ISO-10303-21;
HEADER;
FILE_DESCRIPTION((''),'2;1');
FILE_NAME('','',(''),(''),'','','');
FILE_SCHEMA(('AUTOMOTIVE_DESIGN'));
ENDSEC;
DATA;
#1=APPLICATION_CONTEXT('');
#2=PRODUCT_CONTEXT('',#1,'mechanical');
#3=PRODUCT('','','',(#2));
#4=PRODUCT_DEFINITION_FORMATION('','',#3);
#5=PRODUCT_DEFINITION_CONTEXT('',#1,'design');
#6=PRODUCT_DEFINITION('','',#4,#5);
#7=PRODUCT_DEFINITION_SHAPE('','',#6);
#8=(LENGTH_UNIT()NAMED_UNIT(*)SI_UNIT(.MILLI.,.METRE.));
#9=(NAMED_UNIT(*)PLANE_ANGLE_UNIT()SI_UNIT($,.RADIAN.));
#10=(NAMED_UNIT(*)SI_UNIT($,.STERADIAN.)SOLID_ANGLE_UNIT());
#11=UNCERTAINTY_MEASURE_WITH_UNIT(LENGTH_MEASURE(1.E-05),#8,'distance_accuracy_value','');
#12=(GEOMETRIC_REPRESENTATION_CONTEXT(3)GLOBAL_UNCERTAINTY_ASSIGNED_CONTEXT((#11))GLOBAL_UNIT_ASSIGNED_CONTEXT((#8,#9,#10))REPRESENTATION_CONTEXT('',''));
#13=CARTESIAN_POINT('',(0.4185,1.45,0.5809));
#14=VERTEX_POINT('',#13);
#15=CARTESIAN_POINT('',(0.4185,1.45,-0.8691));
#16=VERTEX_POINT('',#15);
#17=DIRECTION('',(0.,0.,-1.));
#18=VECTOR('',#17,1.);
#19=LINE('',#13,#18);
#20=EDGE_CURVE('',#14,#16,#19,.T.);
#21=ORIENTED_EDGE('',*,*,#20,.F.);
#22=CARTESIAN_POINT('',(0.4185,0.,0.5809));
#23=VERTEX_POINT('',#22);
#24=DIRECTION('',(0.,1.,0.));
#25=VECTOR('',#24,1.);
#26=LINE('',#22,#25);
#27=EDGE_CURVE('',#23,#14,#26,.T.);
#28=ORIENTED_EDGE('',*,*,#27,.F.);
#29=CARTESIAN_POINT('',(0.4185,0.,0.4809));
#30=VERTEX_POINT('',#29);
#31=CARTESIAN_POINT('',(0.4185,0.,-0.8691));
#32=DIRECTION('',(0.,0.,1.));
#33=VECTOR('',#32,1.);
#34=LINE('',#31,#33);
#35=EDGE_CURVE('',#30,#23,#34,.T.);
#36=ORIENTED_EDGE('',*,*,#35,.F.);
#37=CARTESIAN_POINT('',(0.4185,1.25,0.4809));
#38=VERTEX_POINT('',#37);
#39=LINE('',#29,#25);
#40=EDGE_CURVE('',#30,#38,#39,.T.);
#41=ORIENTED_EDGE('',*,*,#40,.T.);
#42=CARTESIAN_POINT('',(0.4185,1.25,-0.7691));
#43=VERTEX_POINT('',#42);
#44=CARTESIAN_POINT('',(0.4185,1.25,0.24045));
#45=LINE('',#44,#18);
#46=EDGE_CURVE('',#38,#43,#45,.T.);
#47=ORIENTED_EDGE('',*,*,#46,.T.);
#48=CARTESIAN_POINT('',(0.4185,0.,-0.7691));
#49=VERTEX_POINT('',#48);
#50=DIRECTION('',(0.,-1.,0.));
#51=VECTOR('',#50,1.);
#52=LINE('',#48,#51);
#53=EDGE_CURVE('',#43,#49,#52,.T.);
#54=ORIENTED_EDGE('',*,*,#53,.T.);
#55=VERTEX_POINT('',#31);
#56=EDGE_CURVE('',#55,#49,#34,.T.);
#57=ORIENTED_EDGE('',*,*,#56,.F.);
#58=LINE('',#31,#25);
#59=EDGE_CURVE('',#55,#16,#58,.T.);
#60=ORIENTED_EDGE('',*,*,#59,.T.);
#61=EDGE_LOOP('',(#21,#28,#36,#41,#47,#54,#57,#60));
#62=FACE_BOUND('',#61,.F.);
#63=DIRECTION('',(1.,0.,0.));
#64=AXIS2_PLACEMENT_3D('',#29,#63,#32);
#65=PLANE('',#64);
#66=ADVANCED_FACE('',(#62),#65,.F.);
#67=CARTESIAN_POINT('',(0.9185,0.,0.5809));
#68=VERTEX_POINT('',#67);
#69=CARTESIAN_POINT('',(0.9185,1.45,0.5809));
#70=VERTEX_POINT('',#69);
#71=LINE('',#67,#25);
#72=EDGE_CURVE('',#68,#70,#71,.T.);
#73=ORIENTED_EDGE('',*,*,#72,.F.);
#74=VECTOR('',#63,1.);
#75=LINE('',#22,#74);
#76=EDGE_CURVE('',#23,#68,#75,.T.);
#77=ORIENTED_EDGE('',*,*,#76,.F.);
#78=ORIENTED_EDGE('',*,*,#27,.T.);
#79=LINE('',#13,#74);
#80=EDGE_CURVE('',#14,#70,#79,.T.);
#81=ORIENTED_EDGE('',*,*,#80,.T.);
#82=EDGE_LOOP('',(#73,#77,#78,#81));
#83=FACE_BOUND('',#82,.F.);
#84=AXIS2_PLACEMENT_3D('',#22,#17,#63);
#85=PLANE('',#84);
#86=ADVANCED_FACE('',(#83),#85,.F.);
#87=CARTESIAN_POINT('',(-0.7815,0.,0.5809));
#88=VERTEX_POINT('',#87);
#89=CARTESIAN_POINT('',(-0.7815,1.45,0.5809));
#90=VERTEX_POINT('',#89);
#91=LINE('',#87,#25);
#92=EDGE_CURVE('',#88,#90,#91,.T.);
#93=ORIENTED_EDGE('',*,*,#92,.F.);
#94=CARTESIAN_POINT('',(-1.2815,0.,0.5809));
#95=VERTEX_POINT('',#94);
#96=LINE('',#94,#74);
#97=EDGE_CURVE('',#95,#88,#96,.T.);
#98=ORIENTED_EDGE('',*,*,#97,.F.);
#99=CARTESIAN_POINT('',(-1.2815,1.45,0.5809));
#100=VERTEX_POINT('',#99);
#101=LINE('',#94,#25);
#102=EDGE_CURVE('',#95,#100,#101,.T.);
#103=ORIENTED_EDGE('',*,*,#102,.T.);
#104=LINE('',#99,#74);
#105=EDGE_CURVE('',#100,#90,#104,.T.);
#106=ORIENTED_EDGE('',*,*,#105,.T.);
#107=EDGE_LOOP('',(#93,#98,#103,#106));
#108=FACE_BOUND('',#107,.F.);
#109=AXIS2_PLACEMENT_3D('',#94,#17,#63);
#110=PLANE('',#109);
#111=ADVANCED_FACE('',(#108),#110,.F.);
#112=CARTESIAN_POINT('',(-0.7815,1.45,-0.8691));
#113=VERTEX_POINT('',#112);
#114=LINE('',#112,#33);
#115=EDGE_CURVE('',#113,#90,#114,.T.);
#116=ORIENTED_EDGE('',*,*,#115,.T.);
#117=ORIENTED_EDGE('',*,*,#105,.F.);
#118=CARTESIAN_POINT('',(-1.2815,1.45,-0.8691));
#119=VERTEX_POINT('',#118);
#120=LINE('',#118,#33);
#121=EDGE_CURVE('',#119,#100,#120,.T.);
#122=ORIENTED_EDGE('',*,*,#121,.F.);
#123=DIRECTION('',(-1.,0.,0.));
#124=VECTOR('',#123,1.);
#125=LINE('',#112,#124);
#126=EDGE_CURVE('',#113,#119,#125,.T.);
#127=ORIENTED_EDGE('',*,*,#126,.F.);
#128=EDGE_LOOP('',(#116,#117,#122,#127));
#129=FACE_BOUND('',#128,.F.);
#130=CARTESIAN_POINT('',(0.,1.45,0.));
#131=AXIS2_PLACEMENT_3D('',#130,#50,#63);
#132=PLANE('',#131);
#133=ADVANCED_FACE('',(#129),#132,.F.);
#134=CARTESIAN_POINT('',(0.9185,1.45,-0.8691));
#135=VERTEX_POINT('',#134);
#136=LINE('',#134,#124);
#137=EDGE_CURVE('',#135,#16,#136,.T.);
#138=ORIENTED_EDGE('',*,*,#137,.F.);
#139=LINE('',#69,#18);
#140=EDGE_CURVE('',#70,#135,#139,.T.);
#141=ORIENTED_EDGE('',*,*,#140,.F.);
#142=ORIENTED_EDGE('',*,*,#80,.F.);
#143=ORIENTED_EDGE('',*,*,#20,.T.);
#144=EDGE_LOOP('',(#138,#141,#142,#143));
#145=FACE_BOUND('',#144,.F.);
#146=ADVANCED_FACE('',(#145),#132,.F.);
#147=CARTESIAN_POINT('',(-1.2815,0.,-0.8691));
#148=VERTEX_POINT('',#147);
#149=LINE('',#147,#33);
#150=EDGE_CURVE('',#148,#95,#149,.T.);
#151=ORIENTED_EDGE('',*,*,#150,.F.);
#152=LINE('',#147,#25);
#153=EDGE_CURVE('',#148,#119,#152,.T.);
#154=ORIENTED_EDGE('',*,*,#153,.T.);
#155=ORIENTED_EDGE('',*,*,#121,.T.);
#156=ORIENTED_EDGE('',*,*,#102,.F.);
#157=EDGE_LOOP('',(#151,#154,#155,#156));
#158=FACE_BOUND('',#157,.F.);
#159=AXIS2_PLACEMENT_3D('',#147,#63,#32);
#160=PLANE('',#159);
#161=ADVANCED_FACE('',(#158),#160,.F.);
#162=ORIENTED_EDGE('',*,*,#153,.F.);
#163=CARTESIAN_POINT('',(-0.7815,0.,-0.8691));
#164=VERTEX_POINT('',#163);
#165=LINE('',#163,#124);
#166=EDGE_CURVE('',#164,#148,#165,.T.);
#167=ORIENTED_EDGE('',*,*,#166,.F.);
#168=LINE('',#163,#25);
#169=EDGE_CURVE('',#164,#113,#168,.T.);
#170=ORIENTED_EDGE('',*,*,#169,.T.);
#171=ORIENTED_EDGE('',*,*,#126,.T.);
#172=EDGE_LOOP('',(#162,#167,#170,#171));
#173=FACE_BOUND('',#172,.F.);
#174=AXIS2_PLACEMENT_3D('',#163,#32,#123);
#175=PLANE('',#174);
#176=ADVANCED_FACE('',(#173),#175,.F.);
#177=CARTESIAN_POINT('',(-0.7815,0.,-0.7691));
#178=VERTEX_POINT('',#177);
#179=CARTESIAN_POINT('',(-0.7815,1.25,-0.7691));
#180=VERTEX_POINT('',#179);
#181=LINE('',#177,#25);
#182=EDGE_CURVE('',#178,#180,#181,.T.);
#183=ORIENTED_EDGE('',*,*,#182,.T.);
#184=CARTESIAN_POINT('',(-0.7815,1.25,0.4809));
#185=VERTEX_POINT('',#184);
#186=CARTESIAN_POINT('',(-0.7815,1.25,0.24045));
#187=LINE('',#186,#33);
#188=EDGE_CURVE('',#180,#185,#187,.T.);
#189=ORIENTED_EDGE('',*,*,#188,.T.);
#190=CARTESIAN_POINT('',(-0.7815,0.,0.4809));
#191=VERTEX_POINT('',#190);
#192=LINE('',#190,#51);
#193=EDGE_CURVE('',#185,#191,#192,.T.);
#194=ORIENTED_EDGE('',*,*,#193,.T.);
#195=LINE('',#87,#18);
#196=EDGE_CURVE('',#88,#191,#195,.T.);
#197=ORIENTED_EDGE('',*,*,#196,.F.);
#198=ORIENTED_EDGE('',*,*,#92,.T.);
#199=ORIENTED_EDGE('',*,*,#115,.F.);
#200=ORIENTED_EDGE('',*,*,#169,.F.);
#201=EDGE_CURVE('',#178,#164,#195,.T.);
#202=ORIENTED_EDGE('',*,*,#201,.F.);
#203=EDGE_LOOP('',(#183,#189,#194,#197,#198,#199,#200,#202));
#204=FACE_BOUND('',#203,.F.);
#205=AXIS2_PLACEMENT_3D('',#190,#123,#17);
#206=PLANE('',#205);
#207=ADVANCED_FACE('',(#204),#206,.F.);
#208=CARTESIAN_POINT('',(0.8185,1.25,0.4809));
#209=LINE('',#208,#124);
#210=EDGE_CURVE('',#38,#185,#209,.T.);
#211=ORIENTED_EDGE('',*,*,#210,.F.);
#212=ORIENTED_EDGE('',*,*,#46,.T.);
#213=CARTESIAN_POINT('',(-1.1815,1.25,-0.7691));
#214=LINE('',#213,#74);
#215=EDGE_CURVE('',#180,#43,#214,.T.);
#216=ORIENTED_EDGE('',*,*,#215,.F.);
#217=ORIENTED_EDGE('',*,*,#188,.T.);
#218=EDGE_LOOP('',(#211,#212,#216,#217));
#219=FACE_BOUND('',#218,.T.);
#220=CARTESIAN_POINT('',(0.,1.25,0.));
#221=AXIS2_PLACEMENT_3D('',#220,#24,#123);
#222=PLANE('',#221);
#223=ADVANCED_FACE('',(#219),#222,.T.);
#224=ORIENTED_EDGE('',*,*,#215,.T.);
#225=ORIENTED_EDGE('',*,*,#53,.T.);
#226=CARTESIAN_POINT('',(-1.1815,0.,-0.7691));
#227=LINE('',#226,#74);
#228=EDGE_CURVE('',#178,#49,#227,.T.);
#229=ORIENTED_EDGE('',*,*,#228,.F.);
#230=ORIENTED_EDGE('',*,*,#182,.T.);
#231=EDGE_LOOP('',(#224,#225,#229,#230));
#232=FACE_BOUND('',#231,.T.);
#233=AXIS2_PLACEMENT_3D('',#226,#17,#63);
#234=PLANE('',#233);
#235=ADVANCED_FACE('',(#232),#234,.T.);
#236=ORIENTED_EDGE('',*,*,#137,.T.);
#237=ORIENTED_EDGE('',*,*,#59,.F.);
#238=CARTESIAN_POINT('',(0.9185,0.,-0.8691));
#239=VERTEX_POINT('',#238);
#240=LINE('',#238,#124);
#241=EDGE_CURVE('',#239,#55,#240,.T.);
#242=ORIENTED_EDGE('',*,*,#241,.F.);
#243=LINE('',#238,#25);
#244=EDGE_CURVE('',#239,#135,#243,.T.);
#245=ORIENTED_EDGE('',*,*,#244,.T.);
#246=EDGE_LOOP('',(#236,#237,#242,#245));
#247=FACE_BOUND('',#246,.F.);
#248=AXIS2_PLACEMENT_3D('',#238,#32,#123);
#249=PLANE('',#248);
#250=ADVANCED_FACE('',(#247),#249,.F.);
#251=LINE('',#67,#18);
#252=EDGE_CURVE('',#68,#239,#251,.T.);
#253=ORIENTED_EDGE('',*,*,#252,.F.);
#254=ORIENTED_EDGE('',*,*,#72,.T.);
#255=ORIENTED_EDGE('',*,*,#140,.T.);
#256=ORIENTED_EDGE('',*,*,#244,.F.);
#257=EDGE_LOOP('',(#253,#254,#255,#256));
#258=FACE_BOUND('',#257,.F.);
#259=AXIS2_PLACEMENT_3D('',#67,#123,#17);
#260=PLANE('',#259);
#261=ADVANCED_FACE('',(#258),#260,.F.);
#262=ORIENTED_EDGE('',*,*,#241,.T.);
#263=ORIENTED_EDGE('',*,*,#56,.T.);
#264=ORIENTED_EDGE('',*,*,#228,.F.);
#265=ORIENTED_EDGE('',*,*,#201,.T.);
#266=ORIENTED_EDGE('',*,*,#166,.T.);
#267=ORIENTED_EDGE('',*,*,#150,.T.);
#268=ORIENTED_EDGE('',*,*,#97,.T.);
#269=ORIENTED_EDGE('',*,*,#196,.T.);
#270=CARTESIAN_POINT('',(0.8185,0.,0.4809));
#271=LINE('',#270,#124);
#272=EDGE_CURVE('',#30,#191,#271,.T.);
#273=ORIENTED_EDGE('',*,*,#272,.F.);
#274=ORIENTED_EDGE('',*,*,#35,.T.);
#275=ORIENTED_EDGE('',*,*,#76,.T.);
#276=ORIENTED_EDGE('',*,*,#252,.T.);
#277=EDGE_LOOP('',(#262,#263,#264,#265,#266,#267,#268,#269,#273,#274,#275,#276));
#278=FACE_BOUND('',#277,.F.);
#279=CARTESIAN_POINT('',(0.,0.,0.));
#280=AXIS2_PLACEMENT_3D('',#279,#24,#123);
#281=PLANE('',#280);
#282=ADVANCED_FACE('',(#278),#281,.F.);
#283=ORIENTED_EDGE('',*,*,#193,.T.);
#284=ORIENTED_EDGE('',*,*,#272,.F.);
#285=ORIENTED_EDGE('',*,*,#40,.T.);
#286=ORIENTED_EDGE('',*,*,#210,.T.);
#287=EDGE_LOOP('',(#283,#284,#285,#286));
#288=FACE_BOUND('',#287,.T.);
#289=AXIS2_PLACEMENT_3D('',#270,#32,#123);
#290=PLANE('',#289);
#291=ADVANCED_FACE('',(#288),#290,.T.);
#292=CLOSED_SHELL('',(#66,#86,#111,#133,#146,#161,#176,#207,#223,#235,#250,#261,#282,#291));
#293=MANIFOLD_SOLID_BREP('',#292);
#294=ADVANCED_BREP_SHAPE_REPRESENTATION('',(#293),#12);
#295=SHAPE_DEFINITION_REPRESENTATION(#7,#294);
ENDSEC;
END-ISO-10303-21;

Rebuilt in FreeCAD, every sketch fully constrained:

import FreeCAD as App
import Part
import Sketcher
from FreeCAD import Vector

doc = App.newDocument("Part")
body = doc.addObject("PartDesign::Body", "Body")

# Sketch on XZ plane
sketch1 = doc.addObject("Sketcher::SketchObject", "Sketch")
body.addObject(sketch1)
sketch1.AttachmentSupport = (doc.XZ_Plane, [""])
sketch1.MapMode = "FlatFace"
sketch1.addGeometry([
    Part.LineSegment(Vector(-1.2, 0.5, 0), Vector(0.8, 0.5, 0)),
    Part.LineSegment(Vector(0.8, 0.5, 0), Vector(0.8, -0.8, 0)),
    Part.LineSegment(Vector(0.8, -0.8, 0), Vector(-1.2, -0.8, 0)),
    Part.LineSegment(Vector(-1.2, -0.8, 0), Vector(-1.2, 0.5, 0)),
], False)
sketch1.addConstraint([
    Sketcher.Constraint("Coincident", 0, 2, 1, 1),
    Sketcher.Constraint("Coincident", 1, 2, 2, 1),
    Sketcher.Constraint("Coincident", 2, 2, 3, 1),
    Sketcher.Constraint("Coincident", 3, 2, 0, 1),
    Sketcher.Constraint("Horizontal", 0),
    Sketcher.Constraint("Vertical", 1),
    Sketcher.Constraint("Horizontal", 2),
    Sketcher.Constraint("Vertical", 3),
    Sketcher.Constraint("DistanceX", 0, 1, 0, 2, 2.0),
    Sketcher.Constraint("DistanceY", 1, 2, 1, 1, 1.25),
    Sketcher.Constraint("DistanceY", -1, 1, 0, 2, 0.481),
    Sketcher.Constraint("DistanceX", -1, 1, 0, 2, 0.8185),
])
pad1 = doc.addObject("PartDesign::Pad", "Pad")
body.addObject(pad1)
pad1.Profile = sketch1
pad1.Length = 1.25
pad1.Reversed = True

# Sketch on XZ plane
sketch2 = doc.addObject("Sketcher::SketchObject", "Sketch001")
body.addObject(sketch2)
sketch2.AttachmentSupport = (doc.XZ_Plane, [""])
sketch2.MapMode = "FlatFace"
sketch2.addGeometry([
    Part.LineSegment(Vector(-0.8, -0.9, 0), Vector(-0.8, 0.6, 0)),  # 0
    Part.LineSegment(Vector(-0.8, 0.6, 0), Vector(-1.3, 0.6, 0)),  # 1
    Part.LineSegment(Vector(-1.3, 0.6, 0), Vector(-1.3, -0.9, 0)),  # 2
    Part.LineSegment(Vector(-1.3, -0.9, 0), Vector(-0.8, -0.9, 0)),  # 3
    Part.LineSegment(Vector(0.4, 0.6, 0), Vector(0.4, -0.9, 0)),  # 4
    Part.LineSegment(Vector(0.4, -0.9, 0), Vector(0.9, -0.9, 0)),  # 5
    Part.LineSegment(Vector(0.9, -0.9, 0), Vector(0.9, 0.6, 0)),  # 6
    Part.LineSegment(Vector(0.9, 0.6, 0), Vector(0.4, 0.6, 0)),  # 7
], False)
sketch2.addConstraint([
    Sketcher.Constraint("Coincident", 0, 2, 1, 1),
    Sketcher.Constraint("Coincident", 1, 2, 2, 1),
    Sketcher.Constraint("Coincident", 2, 2, 3, 1),
    Sketcher.Constraint("Coincident", 3, 2, 0, 1),
    Sketcher.Constraint("Coincident", 4, 2, 5, 1),
    Sketcher.Constraint("Coincident", 5, 2, 6, 1),
    Sketcher.Constraint("Coincident", 6, 2, 7, 1),
    Sketcher.Constraint("Coincident", 7, 2, 4, 1),
    Sketcher.Constraint("Vertical", 0),
    Sketcher.Constraint("Horizontal", 1),
    Sketcher.Constraint("Vertical", 2),
    Sketcher.Constraint("Horizontal", 3),
    Sketcher.Constraint("Vertical", 4),
    Sketcher.Constraint("Horizontal", 5),
    Sketcher.Constraint("Vertical", 6),
    Sketcher.Constraint("Horizontal", 7),
    Sketcher.Constraint("Horizontal", 3, 2, 4, 2),
    Sketcher.Constraint("Horizontal", 1, 2, 6, 2),
    Sketcher.Constraint("Equal", 3, 5),
    Sketcher.Constraint("DistanceX", 1, 2, 1, 1, 0.5),
    Sketcher.Constraint("DistanceY", 0, 1, 0, 2, 1.45),
    Sketcher.Constraint("DistanceX", 2, 2, 5, 2, 2.2),
    Sketcher.Constraint("DistanceY", -1, 1, 0, 2, 0.581),
    Sketcher.Constraint("DistanceX", 0, 2, -1, 1, 0.7815),
])
pad2 = doc.addObject("PartDesign::Pad", "Pad001")
body.addObject(pad2)
pad2.Profile = sketch2
pad2.Length = 1.45
pad2.Reversed = True

doc.recompute()
